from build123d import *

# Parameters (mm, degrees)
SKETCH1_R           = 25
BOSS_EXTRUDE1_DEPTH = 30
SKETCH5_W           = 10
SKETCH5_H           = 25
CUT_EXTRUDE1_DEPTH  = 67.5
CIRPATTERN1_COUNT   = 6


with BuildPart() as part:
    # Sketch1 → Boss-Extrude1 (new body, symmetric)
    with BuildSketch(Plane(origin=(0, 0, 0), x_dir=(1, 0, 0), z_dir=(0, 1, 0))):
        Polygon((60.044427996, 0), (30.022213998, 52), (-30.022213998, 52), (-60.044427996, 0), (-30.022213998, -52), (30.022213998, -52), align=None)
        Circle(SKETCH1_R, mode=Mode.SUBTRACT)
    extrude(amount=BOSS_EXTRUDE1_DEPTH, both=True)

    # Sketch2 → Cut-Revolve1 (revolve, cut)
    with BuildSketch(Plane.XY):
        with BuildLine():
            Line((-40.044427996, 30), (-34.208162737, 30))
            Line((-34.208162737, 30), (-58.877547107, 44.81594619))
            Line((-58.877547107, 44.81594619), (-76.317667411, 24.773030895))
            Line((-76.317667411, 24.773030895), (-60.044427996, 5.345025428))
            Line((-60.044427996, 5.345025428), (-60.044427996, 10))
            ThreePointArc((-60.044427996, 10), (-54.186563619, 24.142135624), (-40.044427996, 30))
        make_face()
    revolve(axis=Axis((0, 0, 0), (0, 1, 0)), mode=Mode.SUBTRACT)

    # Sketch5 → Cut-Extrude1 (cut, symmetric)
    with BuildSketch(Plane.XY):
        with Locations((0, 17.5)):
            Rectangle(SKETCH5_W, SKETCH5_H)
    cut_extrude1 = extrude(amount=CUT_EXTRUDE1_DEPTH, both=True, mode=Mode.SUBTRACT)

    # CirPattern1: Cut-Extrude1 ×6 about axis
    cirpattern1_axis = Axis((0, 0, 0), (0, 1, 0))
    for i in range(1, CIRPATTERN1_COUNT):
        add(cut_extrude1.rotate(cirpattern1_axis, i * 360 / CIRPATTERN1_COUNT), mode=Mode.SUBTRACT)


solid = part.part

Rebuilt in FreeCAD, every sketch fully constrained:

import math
import FreeCAD as App
import Part
import Sketcher

V = App.Vector
Q = App.Units.Quantity


def add_polygon(sketch, points):
    """Adds a closed chain of lines whose ends are joined by coincident constraints."""
    first, n = sketch.GeometryCount, len(points)
    for a, b in zip(points, points[1:] + points[:1]):
        sketch.addGeometry(Part.LineSegment(App.Vector(*a, 0), App.Vector(*b, 0)), False)
    for i in range(n):
        sketch.addConstraint(Sketcher.Constraint("Coincident", first + i, 2, first + (i + 1) % n, 1))

doc = App.newDocument("Part")
body = doc.addObject("PartDesign::Body", "Body")

# Sketch on XZ plane
sketch1 = body.newObject("Sketcher::SketchObject", "Sketch")
sketch1.AttachmentSupport = (doc.getObject("XZ_Plane"), [""])
sketch1.MapMode = "FlatFace"
add_polygon(sketch1, [(60, 0), (30, -52), (-30, -52), (-60, 0), (-30, 52), (30, 52)])  # lines 0-5
sketch1.addGeometry(Part.Circle(V(0, 0, 0), V(0, 0, 1), 25), False)  # 6
sketch1.addConstraint([
    Sketcher.Constraint("Horizontal", 1),
    Sketcher.Constraint("Horizontal", 4),
    Sketcher.Constraint("Coincident", 6, 3, -1, 1),
    Sketcher.Constraint("Symmetric", 0, 2, 3, 2, -1, 1),
    Sketcher.Constraint("Symmetric", 2, 2, 5, 2, -1, 1),
    Sketcher.Constraint("PointOnObject", 2, 2, -1),
    Sketcher.Constraint("Parallel", 2, 5),
    Sketcher.Constraint("Vertical", 1, 2, 3, 2),
    Sketcher.Constraint("Diameter", 6, 50.0),
    Sketcher.Constraint("Angle", 0, Q("-120 deg")),
    Sketcher.Constraint("DistanceY", 0, 2, -1, 1, 52.0),
    Sketcher.Constraint("DistanceX", 1, 2, 1, 1, 60.044428),
])
pad1 = body.newObject("PartDesign::Pad", "Pad")
pad1.Profile = sketch1
pad1.Length = 60
pad1.Midplane = True

# Sketch on XY plane
sketch2 = body.newObject("Sketcher::SketchObject", "Sketch001")
sketch2.AttachmentSupport = (doc.getObject("XY_Plane"), [""])
sketch2.MapMode = "FlatFace"
sketch2.addGeometry([
    Part.LineSegment(V(-40, 30, 0), V(-34.2, 30, 0)),  # 0
    Part.LineSegment(V(-34.2, 30, 0), V(-58.9, 44.8, 0)),  # 1
    Part.LineSegment(V(-58.9, 44.8, 0), V(-76.3, 24.8, 0)),  # 2
    Part.LineSegment(V(-76.3, 24.8, 0), V(-60, 5.3, 0)),  # 3
    Part.LineSegment(V(-60, 5.3, 0), V(-60, 10, 0)),  # 4
    Part.ArcOfCircle(Part.Circle(V(-40, 10, 0), V(0, 0, 1), 20), math.radians(90), math.radians(180)),  # 5
], False)
sketch2.addConstraint([
    Sketcher.Constraint("Coincident", 0, 2, 1, 1),
    Sketcher.Constraint("Coincident", 1, 2, 2, 1),
    Sketcher.Constraint("Coincident", 2, 2, 3, 1),
    Sketcher.Constraint("Coincident", 3, 2, 4, 1),
    Sketcher.Constraint("Tangent", 4, 2, 5, 2),
    Sketcher.Constraint("Tangent", 5, 1, 0, 1),
    Sketcher.Constraint("Horizontal", 0),
    Sketcher.Constraint("Vertical", 4),
    Sketcher.Constraint("Radius", 5, 20.0),
    Sketcher.Constraint("DistanceY", -1, 1, 5, 3, 10.0),
    Sketcher.Constraint("Distance", 2, 26.568332),
    Sketcher.Constraint("Distance", 3, 25.342962),
    Sketcher.Constraint("DistanceX", 0, 1, 0, 2, 5.836265),
    Sketcher.Constraint("DistanceY", 4, 1, 4, 2, 4.654975),
    Sketcher.Constraint("DistanceY", -1, 1, 2, 2, 24.773031),
    Sketcher.Constraint("DistanceX", 1, 2, 5, 3, 18.833119),
    Sketcher.Constraint("DistanceX", 5, 3, -1, 1, 40.044428),
])
groove = body.newObject("PartDesign::Groove", "Groove")
groove.Profile = sketch2
groove.ReferenceAxis = (sketch2, ["V_Axis"])
groove.Angle = 360

# Sketch on XY plane
sketch3 = body.newObject("Sketcher::SketchObject", "Sketch002")
sketch3.AttachmentSupport = (doc.getObject("XY_Plane"), [""])
sketch3.MapMode = "FlatFace"
add_polygon(sketch3, [(-5, 30), (-5, 5), (5, 5), (5, 30)])  # lines 0-3
sketch3.addConstraint([
    Sketcher.Constraint("Vertical", 0),
    Sketcher.Constraint("Horizontal", 1),
    Sketcher.Constraint("Vertical", 2),
    Sketcher.Constraint("Horizontal", 3),
    Sketcher.Constraint("DistanceX", 1, 1, 1, 2, 10.0),
    Sketcher.Constraint("DistanceY", 0, 2, 0, 1, 25.0),
    Sketcher.Constraint("DistanceX", 0, 2, -1, 1, 5.0),
    Sketcher.Constraint("DistanceY", -1, 1, 0, 2, 5.0),
])
pocket1 = body.newObject("PartDesign::Pocket", "Pocket")
pocket1.Profile = sketch3
pocket1.Length = 135
pocket1.Midplane = True
doc.recompute()

polarpattern = body.newObject("PartDesign::PolarPattern", "PolarPattern")
polarpattern.Originals = [pocket1]
polarpattern.Axis = (doc.getObject("Y_Axis"), [""])
polarpattern.Angle = 360
polarpattern.Occurrences = 6
body.Tip = polarpattern

doc.recompute()
